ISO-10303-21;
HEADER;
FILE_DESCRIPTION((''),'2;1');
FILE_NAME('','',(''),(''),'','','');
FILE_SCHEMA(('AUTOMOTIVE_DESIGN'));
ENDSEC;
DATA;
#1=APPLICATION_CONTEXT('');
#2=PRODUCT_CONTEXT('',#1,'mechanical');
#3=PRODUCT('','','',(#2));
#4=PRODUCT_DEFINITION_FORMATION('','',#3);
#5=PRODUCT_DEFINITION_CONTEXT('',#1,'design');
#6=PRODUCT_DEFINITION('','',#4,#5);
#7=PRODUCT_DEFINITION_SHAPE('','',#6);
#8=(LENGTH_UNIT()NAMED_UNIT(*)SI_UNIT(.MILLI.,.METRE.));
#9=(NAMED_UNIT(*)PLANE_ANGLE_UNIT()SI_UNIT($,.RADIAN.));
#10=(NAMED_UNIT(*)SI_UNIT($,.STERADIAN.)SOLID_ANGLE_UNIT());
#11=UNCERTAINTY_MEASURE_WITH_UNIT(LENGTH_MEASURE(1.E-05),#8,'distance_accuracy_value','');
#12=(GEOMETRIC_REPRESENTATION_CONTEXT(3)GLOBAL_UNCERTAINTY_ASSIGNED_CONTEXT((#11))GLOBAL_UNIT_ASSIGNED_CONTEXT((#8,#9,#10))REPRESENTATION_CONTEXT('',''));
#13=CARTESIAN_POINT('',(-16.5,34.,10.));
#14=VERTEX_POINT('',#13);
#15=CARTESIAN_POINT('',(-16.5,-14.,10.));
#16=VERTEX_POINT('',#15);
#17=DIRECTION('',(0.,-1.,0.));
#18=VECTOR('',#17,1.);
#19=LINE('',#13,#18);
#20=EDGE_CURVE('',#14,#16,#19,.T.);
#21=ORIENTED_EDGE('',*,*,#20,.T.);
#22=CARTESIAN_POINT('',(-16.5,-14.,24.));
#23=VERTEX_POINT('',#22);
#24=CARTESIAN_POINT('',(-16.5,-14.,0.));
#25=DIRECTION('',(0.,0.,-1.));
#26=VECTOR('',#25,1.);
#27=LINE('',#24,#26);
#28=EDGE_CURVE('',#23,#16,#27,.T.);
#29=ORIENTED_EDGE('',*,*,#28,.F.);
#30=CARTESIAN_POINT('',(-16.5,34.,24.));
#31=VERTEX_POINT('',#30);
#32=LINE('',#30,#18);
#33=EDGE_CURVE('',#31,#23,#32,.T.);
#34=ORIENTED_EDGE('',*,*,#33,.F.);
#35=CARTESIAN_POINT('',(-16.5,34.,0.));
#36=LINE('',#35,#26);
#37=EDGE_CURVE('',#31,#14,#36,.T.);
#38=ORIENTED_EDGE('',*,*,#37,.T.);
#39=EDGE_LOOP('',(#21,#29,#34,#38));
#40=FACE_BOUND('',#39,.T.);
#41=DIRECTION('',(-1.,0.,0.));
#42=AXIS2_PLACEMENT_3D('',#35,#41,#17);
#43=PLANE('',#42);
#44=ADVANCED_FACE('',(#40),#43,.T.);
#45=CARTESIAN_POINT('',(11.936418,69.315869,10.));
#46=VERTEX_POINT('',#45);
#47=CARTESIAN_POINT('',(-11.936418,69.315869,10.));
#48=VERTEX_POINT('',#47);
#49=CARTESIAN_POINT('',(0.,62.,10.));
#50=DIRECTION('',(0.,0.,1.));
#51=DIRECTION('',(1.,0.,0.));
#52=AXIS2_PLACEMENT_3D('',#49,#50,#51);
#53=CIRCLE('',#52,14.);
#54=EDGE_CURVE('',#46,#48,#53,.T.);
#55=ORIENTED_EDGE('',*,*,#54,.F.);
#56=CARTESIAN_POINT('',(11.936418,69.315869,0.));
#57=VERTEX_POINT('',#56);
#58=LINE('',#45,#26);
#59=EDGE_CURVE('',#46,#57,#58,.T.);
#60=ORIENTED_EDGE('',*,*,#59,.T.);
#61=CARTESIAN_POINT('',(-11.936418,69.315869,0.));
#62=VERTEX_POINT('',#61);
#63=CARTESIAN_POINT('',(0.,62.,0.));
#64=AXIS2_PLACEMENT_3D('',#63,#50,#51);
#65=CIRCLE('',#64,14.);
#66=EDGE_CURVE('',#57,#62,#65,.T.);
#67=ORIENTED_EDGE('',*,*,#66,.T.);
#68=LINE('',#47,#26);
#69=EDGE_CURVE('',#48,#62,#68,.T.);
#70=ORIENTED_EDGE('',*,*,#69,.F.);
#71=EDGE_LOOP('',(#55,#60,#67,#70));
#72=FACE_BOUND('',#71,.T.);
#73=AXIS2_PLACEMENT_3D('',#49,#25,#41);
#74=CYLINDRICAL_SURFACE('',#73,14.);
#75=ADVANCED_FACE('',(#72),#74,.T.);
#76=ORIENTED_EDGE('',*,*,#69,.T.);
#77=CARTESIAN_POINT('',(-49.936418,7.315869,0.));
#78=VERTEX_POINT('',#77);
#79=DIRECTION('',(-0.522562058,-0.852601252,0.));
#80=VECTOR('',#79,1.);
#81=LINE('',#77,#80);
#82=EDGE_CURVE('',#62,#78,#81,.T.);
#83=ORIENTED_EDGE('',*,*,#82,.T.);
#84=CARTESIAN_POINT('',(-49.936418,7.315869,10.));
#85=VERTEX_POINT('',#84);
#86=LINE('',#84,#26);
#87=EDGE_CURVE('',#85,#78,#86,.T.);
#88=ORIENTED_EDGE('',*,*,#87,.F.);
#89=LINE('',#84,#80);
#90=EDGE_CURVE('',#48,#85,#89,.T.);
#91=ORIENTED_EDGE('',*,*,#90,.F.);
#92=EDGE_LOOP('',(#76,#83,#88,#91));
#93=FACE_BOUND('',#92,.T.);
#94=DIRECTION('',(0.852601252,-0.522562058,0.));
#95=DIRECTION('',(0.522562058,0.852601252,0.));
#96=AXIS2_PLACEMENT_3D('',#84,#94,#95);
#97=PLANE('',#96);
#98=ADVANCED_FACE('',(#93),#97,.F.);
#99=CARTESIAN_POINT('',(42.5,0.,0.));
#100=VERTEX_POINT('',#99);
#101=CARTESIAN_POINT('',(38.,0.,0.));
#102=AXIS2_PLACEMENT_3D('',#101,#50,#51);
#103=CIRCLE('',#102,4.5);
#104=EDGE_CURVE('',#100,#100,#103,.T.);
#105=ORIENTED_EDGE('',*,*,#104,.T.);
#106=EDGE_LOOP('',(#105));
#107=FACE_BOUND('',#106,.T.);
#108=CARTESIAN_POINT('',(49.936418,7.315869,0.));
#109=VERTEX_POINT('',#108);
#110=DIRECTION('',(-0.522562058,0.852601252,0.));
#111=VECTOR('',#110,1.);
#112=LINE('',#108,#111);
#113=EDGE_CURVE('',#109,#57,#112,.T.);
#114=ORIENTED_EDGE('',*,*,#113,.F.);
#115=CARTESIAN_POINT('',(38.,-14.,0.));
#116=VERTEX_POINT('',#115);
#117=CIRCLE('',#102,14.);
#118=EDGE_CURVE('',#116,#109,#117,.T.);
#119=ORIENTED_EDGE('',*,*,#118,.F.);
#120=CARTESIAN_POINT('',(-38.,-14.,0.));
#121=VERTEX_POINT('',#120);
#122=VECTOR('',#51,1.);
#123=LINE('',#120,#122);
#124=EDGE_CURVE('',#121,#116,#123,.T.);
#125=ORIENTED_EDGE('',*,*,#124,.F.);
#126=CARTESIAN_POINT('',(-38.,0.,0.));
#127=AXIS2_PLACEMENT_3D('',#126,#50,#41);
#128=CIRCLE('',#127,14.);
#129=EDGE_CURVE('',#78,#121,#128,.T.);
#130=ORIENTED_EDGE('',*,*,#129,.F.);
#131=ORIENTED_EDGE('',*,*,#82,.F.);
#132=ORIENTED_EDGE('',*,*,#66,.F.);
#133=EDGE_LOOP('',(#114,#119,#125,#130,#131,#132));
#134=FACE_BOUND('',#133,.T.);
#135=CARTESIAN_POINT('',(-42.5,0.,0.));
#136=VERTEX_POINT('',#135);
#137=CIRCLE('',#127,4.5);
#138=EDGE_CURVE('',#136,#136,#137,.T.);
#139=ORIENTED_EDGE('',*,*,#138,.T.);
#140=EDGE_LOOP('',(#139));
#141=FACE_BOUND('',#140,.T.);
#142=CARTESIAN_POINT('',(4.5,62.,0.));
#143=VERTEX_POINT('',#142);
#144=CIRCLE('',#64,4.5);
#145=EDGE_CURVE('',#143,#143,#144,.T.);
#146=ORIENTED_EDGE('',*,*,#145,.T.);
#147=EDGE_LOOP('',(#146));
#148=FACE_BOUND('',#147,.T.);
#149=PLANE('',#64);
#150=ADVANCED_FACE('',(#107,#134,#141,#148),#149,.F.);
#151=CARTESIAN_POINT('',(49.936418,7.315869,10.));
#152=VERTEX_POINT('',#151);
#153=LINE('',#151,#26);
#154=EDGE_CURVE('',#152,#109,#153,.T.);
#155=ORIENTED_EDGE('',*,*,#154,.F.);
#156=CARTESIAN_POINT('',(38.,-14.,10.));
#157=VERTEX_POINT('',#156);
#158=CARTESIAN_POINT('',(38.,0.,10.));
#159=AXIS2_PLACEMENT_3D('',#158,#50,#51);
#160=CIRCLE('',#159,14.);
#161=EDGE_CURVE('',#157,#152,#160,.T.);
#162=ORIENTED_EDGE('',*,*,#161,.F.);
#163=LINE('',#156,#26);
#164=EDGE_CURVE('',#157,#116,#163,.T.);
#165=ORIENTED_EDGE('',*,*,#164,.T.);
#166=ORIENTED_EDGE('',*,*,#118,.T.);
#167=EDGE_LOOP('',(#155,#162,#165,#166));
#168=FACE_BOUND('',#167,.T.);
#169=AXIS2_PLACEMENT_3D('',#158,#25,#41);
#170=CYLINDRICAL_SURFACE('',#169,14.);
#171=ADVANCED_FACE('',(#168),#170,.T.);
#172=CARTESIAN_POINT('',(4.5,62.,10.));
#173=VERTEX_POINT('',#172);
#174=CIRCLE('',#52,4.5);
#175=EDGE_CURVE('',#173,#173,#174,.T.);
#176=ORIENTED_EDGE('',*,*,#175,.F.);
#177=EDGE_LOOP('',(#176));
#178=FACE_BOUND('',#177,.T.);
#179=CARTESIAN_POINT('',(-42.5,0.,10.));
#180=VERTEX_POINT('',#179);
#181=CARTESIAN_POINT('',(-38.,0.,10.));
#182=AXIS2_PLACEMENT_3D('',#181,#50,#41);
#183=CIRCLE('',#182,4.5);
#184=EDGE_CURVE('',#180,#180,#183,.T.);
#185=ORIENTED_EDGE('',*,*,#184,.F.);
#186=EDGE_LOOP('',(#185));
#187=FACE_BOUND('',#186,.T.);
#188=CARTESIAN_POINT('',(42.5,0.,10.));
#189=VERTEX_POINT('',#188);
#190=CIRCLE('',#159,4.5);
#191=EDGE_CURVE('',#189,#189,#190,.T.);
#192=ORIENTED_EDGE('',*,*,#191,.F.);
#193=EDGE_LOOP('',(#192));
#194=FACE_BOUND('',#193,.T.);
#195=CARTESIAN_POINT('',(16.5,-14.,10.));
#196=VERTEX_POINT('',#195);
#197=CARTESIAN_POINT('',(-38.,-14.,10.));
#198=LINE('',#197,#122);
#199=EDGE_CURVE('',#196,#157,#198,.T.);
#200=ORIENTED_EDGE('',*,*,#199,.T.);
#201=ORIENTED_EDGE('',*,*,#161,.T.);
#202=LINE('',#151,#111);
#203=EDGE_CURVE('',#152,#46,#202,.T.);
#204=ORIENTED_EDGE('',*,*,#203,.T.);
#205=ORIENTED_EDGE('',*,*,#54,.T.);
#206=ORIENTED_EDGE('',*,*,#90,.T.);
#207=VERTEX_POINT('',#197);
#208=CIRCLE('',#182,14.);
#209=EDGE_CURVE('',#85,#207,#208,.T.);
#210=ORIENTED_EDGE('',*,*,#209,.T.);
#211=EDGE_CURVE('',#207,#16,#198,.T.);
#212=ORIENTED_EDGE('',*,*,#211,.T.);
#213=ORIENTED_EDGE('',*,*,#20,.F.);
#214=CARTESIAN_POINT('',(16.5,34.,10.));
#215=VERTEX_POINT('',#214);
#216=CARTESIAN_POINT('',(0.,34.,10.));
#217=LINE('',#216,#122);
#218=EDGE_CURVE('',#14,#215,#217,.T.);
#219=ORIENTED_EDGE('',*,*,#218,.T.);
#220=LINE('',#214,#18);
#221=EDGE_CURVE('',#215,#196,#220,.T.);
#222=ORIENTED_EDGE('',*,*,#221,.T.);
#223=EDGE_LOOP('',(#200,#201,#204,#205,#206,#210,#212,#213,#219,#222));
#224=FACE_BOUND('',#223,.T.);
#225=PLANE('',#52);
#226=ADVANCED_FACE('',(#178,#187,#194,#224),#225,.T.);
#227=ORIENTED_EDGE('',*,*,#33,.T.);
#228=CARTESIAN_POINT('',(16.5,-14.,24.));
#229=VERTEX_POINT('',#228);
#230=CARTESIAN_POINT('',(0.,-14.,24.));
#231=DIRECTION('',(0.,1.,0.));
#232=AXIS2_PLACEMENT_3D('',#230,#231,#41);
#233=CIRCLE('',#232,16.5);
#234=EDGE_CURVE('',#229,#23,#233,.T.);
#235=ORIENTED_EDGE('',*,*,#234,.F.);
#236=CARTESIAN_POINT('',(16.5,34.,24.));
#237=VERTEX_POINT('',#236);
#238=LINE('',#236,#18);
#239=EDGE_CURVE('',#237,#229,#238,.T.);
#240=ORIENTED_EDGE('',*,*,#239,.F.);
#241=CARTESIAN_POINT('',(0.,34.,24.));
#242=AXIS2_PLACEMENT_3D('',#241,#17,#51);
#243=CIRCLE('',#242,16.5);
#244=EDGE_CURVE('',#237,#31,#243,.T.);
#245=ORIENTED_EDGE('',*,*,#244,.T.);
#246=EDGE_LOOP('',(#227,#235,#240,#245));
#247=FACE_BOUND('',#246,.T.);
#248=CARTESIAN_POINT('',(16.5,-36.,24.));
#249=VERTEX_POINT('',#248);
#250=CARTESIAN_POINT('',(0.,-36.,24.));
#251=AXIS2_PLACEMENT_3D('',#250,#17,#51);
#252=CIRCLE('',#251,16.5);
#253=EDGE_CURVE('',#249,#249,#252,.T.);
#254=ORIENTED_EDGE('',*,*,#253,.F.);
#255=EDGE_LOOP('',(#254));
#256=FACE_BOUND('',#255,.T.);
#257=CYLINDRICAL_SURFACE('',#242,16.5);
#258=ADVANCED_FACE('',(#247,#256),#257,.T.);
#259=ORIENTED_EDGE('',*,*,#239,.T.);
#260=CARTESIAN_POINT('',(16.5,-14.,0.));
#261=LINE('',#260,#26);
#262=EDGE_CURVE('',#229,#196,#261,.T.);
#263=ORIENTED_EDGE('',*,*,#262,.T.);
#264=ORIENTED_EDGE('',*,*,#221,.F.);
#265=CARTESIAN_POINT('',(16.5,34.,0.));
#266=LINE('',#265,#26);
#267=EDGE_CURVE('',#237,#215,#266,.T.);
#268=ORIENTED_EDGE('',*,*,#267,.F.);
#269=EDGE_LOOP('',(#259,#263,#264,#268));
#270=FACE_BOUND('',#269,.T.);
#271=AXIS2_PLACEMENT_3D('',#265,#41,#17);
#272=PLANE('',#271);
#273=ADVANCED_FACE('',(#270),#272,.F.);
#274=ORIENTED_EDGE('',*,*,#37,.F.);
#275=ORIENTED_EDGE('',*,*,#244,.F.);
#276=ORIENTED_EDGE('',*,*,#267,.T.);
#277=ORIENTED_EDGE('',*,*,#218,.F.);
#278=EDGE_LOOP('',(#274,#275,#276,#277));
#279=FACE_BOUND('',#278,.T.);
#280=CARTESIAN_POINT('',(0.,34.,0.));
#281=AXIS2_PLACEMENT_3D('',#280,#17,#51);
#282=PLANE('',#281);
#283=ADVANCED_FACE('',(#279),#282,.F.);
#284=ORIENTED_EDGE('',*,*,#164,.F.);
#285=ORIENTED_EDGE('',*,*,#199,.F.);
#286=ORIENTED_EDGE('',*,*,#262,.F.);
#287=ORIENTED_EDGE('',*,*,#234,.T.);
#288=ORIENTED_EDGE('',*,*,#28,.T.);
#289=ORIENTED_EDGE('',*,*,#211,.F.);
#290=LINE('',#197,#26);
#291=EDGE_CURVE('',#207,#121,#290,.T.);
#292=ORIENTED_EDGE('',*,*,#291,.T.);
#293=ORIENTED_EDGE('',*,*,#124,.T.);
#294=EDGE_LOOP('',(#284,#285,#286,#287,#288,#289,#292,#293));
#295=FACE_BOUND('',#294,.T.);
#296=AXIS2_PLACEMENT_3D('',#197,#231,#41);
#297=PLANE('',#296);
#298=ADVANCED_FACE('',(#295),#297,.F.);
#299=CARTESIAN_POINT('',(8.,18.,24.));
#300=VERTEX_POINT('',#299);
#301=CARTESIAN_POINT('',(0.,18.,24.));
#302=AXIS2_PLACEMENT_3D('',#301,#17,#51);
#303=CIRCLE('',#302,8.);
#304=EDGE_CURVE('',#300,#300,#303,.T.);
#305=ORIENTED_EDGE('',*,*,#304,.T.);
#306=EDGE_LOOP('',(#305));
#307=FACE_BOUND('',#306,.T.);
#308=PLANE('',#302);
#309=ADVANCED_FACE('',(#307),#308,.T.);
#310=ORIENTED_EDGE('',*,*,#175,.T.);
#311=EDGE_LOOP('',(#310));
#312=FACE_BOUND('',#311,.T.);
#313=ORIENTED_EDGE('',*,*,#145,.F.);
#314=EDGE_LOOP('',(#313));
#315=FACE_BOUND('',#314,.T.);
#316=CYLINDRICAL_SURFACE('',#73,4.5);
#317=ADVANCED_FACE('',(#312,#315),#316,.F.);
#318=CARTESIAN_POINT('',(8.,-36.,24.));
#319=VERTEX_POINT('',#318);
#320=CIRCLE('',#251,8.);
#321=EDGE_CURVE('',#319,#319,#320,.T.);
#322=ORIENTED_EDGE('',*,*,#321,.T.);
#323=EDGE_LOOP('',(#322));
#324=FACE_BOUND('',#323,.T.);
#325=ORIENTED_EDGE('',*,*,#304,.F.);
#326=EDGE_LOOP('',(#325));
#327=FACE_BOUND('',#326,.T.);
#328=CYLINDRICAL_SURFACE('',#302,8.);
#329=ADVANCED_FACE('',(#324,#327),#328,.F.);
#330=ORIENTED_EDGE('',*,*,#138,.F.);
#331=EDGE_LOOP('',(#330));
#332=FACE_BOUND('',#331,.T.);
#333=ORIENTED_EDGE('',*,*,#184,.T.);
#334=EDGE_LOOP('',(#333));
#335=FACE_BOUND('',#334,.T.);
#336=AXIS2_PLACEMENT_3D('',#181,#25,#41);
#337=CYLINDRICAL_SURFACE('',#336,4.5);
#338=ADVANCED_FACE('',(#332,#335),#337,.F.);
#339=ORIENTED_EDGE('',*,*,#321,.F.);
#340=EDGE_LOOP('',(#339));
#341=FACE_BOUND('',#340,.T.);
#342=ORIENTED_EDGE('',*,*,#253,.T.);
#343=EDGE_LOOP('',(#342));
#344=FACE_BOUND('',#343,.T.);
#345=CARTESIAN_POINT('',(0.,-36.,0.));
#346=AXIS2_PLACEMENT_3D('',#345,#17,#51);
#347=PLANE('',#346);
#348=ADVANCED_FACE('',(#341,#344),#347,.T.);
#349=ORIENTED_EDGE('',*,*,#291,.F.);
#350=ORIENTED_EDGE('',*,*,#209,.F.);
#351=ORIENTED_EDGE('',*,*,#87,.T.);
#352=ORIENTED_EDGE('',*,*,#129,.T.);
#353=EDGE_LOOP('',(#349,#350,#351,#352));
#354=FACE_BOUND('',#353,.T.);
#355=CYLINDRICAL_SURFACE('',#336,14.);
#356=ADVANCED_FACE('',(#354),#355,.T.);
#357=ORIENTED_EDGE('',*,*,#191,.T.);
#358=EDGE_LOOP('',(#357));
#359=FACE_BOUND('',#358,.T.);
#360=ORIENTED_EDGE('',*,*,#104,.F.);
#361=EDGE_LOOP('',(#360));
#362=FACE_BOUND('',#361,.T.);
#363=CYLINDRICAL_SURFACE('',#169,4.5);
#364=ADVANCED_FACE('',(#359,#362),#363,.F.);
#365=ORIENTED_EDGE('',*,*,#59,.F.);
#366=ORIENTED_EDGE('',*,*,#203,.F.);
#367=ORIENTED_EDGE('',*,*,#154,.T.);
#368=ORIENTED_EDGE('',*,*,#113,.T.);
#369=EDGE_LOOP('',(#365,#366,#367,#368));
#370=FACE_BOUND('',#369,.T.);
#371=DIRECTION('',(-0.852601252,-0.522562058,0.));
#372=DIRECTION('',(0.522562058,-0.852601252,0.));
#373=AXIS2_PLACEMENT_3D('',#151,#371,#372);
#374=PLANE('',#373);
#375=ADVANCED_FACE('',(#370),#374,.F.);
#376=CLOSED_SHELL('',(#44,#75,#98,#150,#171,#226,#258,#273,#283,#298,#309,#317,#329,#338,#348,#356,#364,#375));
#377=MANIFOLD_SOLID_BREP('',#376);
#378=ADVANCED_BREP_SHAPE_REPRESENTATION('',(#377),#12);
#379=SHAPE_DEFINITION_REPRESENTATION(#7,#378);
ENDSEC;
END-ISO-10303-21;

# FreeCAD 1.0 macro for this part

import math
import FreeCAD as App
import Part
import Sketcher
from FreeCAD import Vector

doc = App.newDocument("Part")
body = doc.addObject("PartDesign::Body", "Body")

sketch1 = body.newObject("Sketcher::SketchObject", "Sketch")
sketch1.AttachmentSupport = (doc.getObject("XY_Plane"), [""])
sketch1.MapMode = "FlatFace"
sketch1.addGeometry([
    Part.LineSegment(Vector(-38, -14, 0), Vector(38, -14, 0)),
    Part.ArcOfCircle(Part.Circle(Vector(38, 0, 0), Vector(0, 0, 1), 14), math.radians(-90), math.radians(32)),
    Part.LineSegment(Vector(49.9, 7.3, 0), Vector(11.9, 69.3, 0)),
    Part.ArcOfCircle(Part.Circle(Vector(0, 62, 0), Vector(0, 0, 1), 14), math.radians(32), math.radians(148)),
    Part.LineSegment(Vector(-11.9, 69.3, 0), Vector(-49.9, 7.3, 0)),
    Part.ArcOfCircle(Part.Circle(Vector(-38, 0, 0), Vector(0, 0, 1), 14), math.radians(148), math.radians(270)),
    Part.Circle(Vector(-38, 0, 0), Vector(0, 0, 1), 4.5),
    Part.Circle(Vector(38, 0, 0), Vector(0, 0, 1), 4.5),
    Part.Circle(Vector(0, 62, 0), Vector(0, 0, 1), 4.5),
], False)
sketch1.addConstraint([
    Sketcher.Constraint("Tangent", 0, 2, 1, 1),
    Sketcher.Constraint("Tangent", 1, 2, 2, 1),
    Sketcher.Constraint("Tangent", 2, 2, 3, 1),
    Sketcher.Constraint("Tangent", 3, 2, 4, 1),
    Sketcher.Constraint("Tangent", 4, 2, 5, 1),
    Sketcher.Constraint("Tangent", 5, 2, 0, 1),
    Sketcher.Constraint("Horizontal", 0),
    Sketcher.Constraint("Coincident", 6, 3, 5, 3),
    Sketcher.Constraint("Coincident", 7, 3, 1, 3),
    Sketcher.Constraint("Coincident", 8, 3, 3, 3),
    Sketcher.Constraint("Equal", 1, 3),
    Sketcher.Constraint("Equal", 3, 5),
    Sketcher.Constraint("Equal", 6, 7),
    Sketcher.Constraint("Equal", 7, 8),
    Sketcher.Constraint("Symmetric", 1, 3, 5, 3, -1, 1),
    Sketcher.Constraint("PointOnObject", 3, 3, -2),
    Sketcher.Constraint("Diameter", 6, 9.0),
    Sketcher.Constraint("Radius", 1, 14.0),
    Sketcher.Constraint("DistanceX", 0, 1, 0, 2, 76.0),
    Sketcher.Constraint("DistanceY", -1, 1, 3, 3, 62.0),
])
pad1 = body.newObject("PartDesign::Pad", "Pad")
pad1.Profile = sketch1
pad1.Length = 10

sketch2 = body.newObject("Sketcher::SketchObject", "Sketch001")
sketch2.AttachmentSupport = (doc.getObject("XZ_Plane"), [""])
sketch2.MapMode = "FlatFace"
sketch2.AttachmentOffset = App.Placement(Vector(0, 0, 14), App.Rotation())
sketch2.addGeometry([
    Part.ArcOfCircle(Part.Circle(Vector(0, 24, 0), Vector(0, 0, 1), 16), math.radians(180), math.radians(238)),
    Part.ArcOfCircle(Part.Circle(Vector(0, 24, 0), Vector(0, 0, 1), 16), math.radians(-122), math.radians(-58)),
    Part.ArcOfCircle(Part.Circle(Vector(0, 24, 0), Vector(0, 0, 1), 16), math.radians(-58), math.radians(0)),
    Part.ArcOfCircle(Part.Circle(Vector(0, 24, 0), Vector(0, 0, 1), 16), math.radians(0), math.radians(180)),
], False)
sketch2.addConstraint([
    Sketcher.Constraint("Tangent", 0, 2, 1, 1),
    Sketcher.Constraint("Tangent", 1, 2, 2, 1),
    Sketcher.Constraint("Tangent", 2, 2, 3, 1),
    Sketcher.Constraint("Tangent", 3, 2, 0, 1),
    Sketcher.Constraint("Equal", 0, 1),
    Sketcher.Constraint("Symmetric", 0, 2, 1, 2, -2),
    Sketcher.Constraint("Horizontal", 3, 3, 2, 2),
    Sketcher.Constraint("Horizontal", 2, 2, 3, 2),
    Sketcher.Constraint("Radius", 0, 16.5),
    Sketcher.Constraint("DistanceY", -1, 1, 0, 3, 24.0),
    Sketcher.Constraint("DistanceY", -1, 1, 0, 2, 10.0),
])
pad2 = body.newObject("PartDesign::Pad", "Pad001")
pad2.Profile = sketch2
pad2.Type = "TwoLengths"
pad2.Length = 22
pad2.Length2 = 48

sketch3 = body.newObject("Sketcher::SketchObject", "Sketch002")
sketch3.AttachmentSupport = (doc.getObject("XZ_Plane"), [""])
sketch3.MapMode = "FlatFace"
sketch3.AttachmentOffset = App.Placement(Vector(0, 0, -34), App.Rotation())
sketch3.addGeometry([
    Part.ArcOfCircle(Part.Circle(Vector(0, 24, 0), Vector(0, 0, 1), 16), math.radians(-58), math.radians(0)),
    Part.LineSegment(Vector(9, 10, 0), Vector(16, 10, 0)),
    Part.LineSegment(Vector(16, 10, 0), Vector(16, 24, 0)),
    Part.LineSegment(Vector(-16, 24, 0), Vector(-16, 10, 0)),
    Part.LineSegment(Vector(-16, 10, 0), Vector(-9, 10, 0)),
    Part.ArcOfCircle(Part.Circle(Vector(0, 24, 0), Vector(0, 0, 1), 16), math.radians(180), math.radians(238)),
], False)
sketch3.addConstraint([
    Sketcher.Constraint("Coincident", 0, 1, 1, 1),
    Sketcher.Constraint("Coincident", 1, 2, 2, 1),
    Sketcher.Constraint("Tangent", 2, 2, 0, 2),
    Sketcher.Constraint("Coincident", 3, 2, 4, 1),
    Sketcher.Constraint("Coincident", 4, 2, 5, 2),
    Sketcher.Constraint("Tangent", 5, 1, 3, 1),
    Sketcher.Constraint("Horizontal", 1),
    Sketcher.Constraint("Vertical", 2),
    Sketcher.Constraint("Vertical", 3),
    Sketcher.Constraint("Horizontal", 4),
    Sketcher.Constraint("Coincident", 5, 3, 0, 3),
    Sketcher.Constraint("Equal", 0, 5),
    Sketcher.Constraint("Symmetric", 1, 2, 3, 2, -2),
    Sketcher.Constraint("Radius", 0, 16.5),
    Sketcher.Constraint("DistanceY", 2, 1, 2, 2, 14.0),
    Sketcher.Constraint("DistanceY", -1, 1, 0, 3, 24.0),
])
pad3 = body.newObject("PartDesign::Pad", "Pad002")
pad3.Profile = sketch3
pad3.Length = 48

sketch4 = body.newObject("Sketcher::SketchObject", "Sketch003")
sketch4.AttachmentSupport = (doc.getObject("XZ_Plane"), [""])
sketch4.MapMode = "FlatFace"
sketch4.AttachmentOffset = App.Placement(Vector(0, 0, 36), App.Rotation())
sketch4.addGeometry(Part.Circle(Vector(0, 24, 0), Vector(0, 0, 1), 8), False)
sketch4.addConstraint([
    Sketcher.Constraint("PointOnObject", 0, 3, -2),
    Sketcher.Constraint("Diameter", 0, 16.0),
    Sketcher.Constraint("DistanceY", -1, 1, 0, 3, 24.0),
])
pocket1 = body.newObject("PartDesign::Pocket", "Pocket")
pocket1.Profile = sketch4
pocket1.Length = 54

doc.recompute()
